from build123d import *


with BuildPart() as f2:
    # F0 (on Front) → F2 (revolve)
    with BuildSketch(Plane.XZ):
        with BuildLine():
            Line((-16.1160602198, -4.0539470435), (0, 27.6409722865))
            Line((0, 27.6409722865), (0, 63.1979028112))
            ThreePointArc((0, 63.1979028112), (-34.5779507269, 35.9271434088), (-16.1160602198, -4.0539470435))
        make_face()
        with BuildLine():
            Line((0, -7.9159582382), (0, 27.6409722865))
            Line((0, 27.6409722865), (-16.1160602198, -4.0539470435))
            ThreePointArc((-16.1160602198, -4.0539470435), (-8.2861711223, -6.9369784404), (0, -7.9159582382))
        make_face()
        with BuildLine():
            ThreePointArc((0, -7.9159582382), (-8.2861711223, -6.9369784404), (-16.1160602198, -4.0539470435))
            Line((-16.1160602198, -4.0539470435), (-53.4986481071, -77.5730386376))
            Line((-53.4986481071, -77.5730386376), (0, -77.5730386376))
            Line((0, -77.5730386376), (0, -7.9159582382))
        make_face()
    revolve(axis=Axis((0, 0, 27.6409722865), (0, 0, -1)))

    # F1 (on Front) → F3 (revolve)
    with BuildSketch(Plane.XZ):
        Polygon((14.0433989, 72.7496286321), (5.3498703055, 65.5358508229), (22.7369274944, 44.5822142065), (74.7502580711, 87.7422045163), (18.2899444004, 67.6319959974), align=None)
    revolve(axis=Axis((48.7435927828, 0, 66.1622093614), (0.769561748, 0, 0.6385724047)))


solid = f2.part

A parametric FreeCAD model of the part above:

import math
import FreeCAD as App
import Part
import Sketcher
from FreeCAD import Vector

doc = App.newDocument("Part")
body = doc.addObject("PartDesign::Body", "Body")

sketch1 = body.newObject("Sketcher::SketchObject", "Sketch")
sketch1.AttachmentSupport = (doc.getObject("XZ_Plane"), [""])
sketch1.MapMode = "FlatFace"
sketch1.addGeometry([
    Part.ArcOfCircle(Part.Circle(Vector(0, 28, 0), Vector(0, 0, 1), 36), math.radians(90), math.radians(243)),
    Part.LineSegment(Vector(-16, -4, 0), Vector(-53, -78, 0)),
    Part.LineSegment(Vector(-53, -78, 0), Vector(0, -78, 0)),
    Part.LineSegment(Vector(0, -78, 0), Vector(0, 63, 0)),
], False)
sketch1.addConstraint([
    Sketcher.Constraint("Coincident", 0, 2, 1, 1),
    Sketcher.Constraint("Coincident", 1, 2, 2, 1),
    Sketcher.Constraint("Coincident", 2, 2, 3, 1),
    Sketcher.Constraint("Coincident", 3, 2, 0, 1),
    Sketcher.Constraint("Horizontal", 2),
    Sketcher.Constraint("Vertical", 3),
    Sketcher.Constraint("PointOnObject", 0, 3, -2),
    Sketcher.Constraint("PointOnObject", 2, 2, -2),
    Sketcher.Constraint("Radius", 0, 35.556931),
    Sketcher.Constraint("DistanceX", 2, 1, 2, 2, 53.498648),
    Sketcher.Constraint("DistanceY", 3, 1, 3, 2, 140.770941),
    Sketcher.Constraint("DistanceX", 0, 2, -1, 1, 16.11606),
    Sketcher.Constraint("DistanceY", 1, 2, -1, 1, 77.573039),
])
revolution = body.newObject("PartDesign::Revolution", "Revolution")
revolution.Profile = sketch1
revolution.ReferenceAxis = (sketch1, ["V_Axis"])
revolution.Angle = 360

sketch2 = body.newObject("Sketcher::SketchObject", "Sketch001")
sketch2.AttachmentSupport = (doc.getObject("XZ_Plane"), [""])
sketch2.MapMode = "FlatFace"
sketch2.addGeometry([
    Part.LineSegment(Vector(14, 73, 0), Vector(5, 66, 0)),
    Part.LineSegment(Vector(5, 66, 0), Vector(23, 45, 0)),
    Part.LineSegment(Vector(23, 45, 0), Vector(75, 88, 0)),
    Part.LineSegment(Vector(75, 88, 0), Vector(18, 68, 0)),
    Part.LineSegment(Vector(18, 68, 0), Vector(14, 73, 0)),
], False)
sketch2.addGeometry(Part.LineSegment(Vector(23, 45, 0), Vector(75, 88, 0)), True)
sketch2.addConstraint([
    Sketcher.Constraint("Coincident", 0, 2, 1, 1),
    Sketcher.Constraint("Coincident", 1, 2, 2, 1),
    Sketcher.Constraint("Coincident", 2, 2, 3, 1),
    Sketcher.Constraint("Coincident", 3, 2, 4, 1),
    Sketcher.Constraint("Coincident", 4, 2, 0, 1),
    Sketcher.Constraint("Coincident", 5, 1, 1, 2),
    Sketcher.Constraint("Coincident", 5, 2, 2, 2),
    Sketcher.Constraint("Perpendicular", 0, 1),
    Sketcher.Constraint("Perpendicular", 1, 2),
    Sketcher.Constraint("Perpendicular", 2, 4),
    Sketcher.Constraint("DistanceX", -1, 1, 4, 2, 14.043399),
    Sketcher.Constraint("Distance", 2, 67.588248),
    Sketcher.Constraint("Distance", 3, 59.934861),
    Sketcher.Constraint("Distance", 4, 6.650061),
    Sketcher.Constraint("DistanceX", -1, 1, 0, 2, 5.34987),
    Sketcher.Constraint("DistanceY", -1, 1, 0, 2, 65.535851),
    Sketcher.Constraint("DistanceX", -1, 1, 2, 2, 74.750258),
])
revolution2 = body.newObject("PartDesign::Revolution", "Revolution001")
revolution2.Profile = sketch2
revolution2.ReferenceAxis = (sketch2, ["Axis0"])
revolution2.Angle = 360

doc.recompute()
